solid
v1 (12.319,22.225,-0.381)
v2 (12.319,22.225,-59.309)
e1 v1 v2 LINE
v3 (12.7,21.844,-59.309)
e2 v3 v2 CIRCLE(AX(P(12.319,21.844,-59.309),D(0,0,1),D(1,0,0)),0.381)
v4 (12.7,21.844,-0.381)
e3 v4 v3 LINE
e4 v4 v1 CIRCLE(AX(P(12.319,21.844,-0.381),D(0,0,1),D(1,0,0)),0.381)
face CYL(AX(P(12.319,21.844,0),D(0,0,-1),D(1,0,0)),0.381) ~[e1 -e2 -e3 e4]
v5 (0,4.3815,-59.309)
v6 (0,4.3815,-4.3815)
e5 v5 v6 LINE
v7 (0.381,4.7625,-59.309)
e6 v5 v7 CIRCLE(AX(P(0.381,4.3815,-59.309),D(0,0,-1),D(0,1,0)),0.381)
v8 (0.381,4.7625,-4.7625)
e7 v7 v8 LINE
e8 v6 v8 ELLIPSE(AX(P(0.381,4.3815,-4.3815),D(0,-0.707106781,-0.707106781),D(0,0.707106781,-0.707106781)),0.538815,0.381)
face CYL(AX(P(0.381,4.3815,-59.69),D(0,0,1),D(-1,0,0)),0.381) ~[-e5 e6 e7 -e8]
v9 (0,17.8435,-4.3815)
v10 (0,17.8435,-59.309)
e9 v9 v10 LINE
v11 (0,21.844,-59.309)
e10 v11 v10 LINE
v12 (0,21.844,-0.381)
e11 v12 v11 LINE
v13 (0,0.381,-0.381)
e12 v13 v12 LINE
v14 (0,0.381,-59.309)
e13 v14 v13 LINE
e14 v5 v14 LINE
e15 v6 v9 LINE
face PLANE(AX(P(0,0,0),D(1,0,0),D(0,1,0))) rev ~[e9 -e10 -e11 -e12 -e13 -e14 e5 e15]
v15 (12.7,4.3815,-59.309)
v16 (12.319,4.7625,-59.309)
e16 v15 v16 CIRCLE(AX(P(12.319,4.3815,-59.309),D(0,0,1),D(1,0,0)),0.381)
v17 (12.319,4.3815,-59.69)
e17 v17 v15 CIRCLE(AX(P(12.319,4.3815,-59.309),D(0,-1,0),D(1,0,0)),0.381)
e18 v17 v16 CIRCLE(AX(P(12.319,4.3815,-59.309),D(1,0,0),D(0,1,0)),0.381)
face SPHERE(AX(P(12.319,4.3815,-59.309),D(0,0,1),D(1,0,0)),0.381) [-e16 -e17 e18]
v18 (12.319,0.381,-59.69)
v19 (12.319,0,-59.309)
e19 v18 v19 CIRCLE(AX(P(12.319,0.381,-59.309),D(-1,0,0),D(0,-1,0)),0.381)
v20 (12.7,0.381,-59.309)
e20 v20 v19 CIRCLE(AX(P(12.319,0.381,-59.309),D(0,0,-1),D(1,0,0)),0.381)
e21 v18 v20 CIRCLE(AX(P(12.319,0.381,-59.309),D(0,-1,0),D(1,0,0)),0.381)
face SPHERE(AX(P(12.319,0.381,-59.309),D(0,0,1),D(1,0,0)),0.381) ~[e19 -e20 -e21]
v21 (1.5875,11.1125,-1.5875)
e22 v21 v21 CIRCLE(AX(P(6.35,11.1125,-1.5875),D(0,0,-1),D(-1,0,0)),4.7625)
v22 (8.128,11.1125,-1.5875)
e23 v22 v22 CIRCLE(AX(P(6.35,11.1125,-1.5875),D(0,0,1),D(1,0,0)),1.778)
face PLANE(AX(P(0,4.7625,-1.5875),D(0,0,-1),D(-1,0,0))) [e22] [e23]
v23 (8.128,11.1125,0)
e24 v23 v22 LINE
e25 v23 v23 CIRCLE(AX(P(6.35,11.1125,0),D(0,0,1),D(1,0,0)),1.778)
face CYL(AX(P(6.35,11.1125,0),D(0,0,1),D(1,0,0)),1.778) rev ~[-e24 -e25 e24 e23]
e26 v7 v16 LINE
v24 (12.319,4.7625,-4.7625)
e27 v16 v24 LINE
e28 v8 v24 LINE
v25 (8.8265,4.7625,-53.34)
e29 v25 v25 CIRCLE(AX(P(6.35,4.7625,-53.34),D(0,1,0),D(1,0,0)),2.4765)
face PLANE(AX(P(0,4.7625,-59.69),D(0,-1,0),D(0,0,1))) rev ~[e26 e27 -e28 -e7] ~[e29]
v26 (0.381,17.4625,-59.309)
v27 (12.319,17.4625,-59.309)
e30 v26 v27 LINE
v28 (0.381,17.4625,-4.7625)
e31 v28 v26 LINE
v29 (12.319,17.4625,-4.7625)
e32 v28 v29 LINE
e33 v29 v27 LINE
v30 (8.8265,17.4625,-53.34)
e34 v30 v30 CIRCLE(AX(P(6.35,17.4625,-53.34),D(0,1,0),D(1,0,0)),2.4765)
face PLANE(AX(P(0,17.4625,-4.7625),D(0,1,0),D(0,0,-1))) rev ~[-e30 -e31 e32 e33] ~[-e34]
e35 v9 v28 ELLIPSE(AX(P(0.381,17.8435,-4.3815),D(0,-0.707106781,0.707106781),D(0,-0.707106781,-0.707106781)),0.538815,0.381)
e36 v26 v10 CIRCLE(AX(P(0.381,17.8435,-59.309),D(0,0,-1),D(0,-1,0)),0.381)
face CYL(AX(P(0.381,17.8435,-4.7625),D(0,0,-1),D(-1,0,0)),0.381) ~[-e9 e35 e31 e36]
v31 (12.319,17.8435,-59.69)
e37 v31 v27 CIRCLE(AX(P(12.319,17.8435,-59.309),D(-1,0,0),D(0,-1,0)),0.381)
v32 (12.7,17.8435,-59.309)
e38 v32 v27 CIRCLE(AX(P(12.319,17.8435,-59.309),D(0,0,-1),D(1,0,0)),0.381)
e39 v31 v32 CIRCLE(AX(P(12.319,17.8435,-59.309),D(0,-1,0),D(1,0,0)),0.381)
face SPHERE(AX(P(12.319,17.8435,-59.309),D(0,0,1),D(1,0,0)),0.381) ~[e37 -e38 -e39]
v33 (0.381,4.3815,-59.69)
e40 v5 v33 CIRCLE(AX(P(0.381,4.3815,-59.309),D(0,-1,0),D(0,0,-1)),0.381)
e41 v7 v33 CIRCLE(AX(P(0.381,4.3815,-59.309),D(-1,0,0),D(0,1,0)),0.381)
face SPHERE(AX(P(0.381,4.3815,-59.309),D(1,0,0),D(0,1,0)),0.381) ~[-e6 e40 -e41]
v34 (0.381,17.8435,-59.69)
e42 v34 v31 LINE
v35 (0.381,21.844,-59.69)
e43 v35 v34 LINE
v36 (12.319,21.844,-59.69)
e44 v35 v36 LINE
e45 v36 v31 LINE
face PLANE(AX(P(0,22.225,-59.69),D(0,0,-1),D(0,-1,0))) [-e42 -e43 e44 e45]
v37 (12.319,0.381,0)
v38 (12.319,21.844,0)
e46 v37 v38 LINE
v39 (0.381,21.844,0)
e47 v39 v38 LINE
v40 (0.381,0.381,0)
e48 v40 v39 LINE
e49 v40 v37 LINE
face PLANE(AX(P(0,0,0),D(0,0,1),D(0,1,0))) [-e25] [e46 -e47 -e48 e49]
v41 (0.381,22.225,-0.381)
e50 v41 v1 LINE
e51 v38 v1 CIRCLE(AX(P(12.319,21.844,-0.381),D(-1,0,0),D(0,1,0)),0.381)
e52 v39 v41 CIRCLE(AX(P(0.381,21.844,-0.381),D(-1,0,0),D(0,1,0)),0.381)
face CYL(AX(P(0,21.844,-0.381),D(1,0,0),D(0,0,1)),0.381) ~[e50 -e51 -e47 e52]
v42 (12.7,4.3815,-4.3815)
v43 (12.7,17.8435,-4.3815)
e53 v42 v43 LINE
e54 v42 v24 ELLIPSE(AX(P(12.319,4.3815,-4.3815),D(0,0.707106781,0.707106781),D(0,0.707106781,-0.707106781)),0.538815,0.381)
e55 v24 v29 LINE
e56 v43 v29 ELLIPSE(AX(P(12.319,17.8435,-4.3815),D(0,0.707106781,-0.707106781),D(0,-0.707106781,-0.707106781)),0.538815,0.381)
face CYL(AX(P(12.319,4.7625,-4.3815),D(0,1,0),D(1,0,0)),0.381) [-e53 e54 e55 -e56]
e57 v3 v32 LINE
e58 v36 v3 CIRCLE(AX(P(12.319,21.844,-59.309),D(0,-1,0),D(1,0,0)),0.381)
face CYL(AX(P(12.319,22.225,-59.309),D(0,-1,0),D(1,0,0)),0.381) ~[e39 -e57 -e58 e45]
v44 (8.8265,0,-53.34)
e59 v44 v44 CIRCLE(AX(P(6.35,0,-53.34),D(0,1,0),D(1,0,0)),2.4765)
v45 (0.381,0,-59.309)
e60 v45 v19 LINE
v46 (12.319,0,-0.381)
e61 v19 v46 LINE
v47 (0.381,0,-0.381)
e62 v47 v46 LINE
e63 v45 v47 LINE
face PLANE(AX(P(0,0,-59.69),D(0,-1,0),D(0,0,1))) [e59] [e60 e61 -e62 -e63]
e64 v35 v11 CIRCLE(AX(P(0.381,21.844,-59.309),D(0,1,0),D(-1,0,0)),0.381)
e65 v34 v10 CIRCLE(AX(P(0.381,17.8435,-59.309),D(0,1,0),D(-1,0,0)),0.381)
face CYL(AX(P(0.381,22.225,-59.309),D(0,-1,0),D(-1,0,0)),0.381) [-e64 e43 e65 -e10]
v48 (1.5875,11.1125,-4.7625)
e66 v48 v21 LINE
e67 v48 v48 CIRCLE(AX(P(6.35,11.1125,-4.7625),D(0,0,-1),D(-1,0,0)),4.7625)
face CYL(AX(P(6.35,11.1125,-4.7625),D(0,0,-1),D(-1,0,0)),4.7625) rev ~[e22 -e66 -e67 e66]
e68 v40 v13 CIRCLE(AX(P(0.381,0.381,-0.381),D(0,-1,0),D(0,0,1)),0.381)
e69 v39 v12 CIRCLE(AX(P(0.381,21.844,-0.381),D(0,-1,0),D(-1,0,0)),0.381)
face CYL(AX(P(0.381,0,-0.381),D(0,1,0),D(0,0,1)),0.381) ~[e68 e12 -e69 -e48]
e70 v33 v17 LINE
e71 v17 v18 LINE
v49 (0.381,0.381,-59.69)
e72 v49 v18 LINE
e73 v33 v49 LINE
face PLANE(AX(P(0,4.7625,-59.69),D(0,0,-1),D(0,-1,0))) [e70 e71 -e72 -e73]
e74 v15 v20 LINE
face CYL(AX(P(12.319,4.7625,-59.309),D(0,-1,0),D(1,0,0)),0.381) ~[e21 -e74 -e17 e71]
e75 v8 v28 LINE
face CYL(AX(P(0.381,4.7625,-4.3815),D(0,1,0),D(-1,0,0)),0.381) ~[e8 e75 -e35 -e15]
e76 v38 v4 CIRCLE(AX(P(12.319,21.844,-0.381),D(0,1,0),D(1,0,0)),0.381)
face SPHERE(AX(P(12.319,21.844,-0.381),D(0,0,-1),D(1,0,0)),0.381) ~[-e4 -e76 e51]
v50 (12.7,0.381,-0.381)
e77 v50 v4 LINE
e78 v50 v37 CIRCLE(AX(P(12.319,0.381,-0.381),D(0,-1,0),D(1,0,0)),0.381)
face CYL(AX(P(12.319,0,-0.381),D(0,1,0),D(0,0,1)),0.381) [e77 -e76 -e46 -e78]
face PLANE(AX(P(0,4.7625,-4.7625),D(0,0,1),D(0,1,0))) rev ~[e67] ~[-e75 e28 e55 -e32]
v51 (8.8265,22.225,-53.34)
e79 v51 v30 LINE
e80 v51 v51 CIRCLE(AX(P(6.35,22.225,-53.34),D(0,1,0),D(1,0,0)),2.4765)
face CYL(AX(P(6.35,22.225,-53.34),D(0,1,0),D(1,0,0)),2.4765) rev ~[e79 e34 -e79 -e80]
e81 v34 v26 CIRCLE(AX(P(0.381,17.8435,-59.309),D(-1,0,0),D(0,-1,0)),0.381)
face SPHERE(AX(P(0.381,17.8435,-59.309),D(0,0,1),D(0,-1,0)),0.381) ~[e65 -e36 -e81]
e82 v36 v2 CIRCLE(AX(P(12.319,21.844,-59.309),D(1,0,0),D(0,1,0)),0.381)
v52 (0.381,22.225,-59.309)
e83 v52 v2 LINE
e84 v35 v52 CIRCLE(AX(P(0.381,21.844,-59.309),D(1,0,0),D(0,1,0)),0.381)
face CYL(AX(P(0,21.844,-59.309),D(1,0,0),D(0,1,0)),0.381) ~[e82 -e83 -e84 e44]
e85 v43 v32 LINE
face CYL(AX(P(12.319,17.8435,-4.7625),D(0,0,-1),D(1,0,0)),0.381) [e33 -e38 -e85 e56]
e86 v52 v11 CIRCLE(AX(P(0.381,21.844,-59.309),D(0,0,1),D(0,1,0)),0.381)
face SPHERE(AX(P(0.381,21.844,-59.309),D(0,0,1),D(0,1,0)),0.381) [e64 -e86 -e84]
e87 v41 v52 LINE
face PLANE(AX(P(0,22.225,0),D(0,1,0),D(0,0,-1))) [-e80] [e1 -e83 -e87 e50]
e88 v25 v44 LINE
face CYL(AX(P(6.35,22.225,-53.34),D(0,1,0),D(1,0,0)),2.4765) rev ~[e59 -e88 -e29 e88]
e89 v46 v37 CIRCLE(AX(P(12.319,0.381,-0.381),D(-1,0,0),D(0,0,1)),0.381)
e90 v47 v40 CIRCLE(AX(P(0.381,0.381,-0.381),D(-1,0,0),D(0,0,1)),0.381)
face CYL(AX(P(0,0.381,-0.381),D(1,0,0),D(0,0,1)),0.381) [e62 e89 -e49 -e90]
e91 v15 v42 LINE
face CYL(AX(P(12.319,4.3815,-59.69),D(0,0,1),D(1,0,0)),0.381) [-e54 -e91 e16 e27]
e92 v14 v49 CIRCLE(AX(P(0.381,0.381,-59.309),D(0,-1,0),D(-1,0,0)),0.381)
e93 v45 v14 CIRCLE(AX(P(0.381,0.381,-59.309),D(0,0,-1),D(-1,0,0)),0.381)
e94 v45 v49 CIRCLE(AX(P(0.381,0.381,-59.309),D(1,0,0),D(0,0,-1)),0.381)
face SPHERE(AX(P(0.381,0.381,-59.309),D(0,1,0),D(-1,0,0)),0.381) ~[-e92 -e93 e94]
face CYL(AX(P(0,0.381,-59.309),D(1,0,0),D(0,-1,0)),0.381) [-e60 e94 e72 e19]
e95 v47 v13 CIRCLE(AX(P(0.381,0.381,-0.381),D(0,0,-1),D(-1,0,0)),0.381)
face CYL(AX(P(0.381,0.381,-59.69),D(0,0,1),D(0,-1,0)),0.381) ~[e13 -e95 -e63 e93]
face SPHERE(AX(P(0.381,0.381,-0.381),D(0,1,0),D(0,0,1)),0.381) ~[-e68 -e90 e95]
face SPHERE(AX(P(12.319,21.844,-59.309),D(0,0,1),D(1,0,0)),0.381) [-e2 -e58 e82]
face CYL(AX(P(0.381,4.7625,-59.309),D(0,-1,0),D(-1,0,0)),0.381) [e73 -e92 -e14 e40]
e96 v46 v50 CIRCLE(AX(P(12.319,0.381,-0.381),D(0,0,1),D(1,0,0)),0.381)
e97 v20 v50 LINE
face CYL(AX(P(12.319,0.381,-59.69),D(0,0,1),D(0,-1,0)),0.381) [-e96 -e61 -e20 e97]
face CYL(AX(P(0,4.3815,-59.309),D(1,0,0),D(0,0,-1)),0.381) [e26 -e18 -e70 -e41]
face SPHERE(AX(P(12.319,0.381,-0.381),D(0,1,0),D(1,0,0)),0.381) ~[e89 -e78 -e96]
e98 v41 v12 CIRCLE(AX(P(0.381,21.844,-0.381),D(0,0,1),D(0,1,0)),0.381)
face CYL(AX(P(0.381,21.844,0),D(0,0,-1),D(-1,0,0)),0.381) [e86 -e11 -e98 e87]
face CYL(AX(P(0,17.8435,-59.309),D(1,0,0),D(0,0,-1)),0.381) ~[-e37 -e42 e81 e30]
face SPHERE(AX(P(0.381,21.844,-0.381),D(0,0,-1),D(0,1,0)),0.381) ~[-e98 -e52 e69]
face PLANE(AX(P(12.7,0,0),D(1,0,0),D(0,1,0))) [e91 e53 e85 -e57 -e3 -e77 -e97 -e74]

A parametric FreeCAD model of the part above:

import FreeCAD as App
import Part
import Sketcher

V = App.Vector
Q = App.Units.Quantity


def edges_at(feature, points):
    """Names of the edges that pass closest to the given points."""
    edges = feature.Shape.Edges
    near = lambda p: min(range(len(edges)), key=lambda i: edges[i].distToShape(Part.Vertex(*p))[0])
    return sorted({f"Edge{near(p) + 1}" for p in points})

doc = App.newDocument("Part")
body = doc.addObject("PartDesign::Body", "Body")

# Sketch on YZ plane
sketch1 = body.newObject("Sketcher::SketchObject", "Sketch")
sketch1.AttachmentSupport = (doc.getObject("YZ_Plane"), [""])
sketch1.MapMode = "FlatFace"
sketch1.addGeometry([
    Part.LineSegment(V(22.2, 0, 0), V(0, 0, 0)),  # 0
    Part.LineSegment(V(0, 0, 0), V(0, -59.7, 0)),  # 1
    Part.LineSegment(V(0, -59.7, 0), V(4.8, -59.7, 0)),  # 2
    Part.LineSegment(V(4.8, -59.7, 0), V(4.8, -4.8, 0)),  # 3
    Part.LineSegment(V(4.8, -4.8, 0), V(17.5, -4.8, 0)),  # 4
    Part.LineSegment(V(17.5, -4.8, 0), V(17.5, -59.7, 0)),  # 5
    Part.LineSegment(V(17.5, -59.7, 0), V(22.2, -59.7, 0)),  # 6
    Part.LineSegment(V(22.2, -59.7, 0), V(22.2, 0, 0)),  # 7
], False)
sketch1.addConstraint([
    Sketcher.Constraint("Coincident", 0, 2, 1, 1),
    Sketcher.Constraint("Coincident", 1, 2, 2, 1),
    Sketcher.Constraint("Coincident", 2, 2, 3, 1),
    Sketcher.Constraint("Coincident", 3, 2, 4, 1),
    Sketcher.Constraint("Coincident", 4, 2, 5, 1),
    Sketcher.Constraint("Coincident", 5, 2, 6, 1),
    Sketcher.Constraint("Coincident", 6, 2, 7, 1),
    Sketcher.Constraint("Coincident", 7, 2, 0, 1),
    Sketcher.Constraint("Horizontal", 0),
    Sketcher.Constraint("Vertical", 1),
    Sketcher.Constraint("Horizontal", 2),
    Sketcher.Constraint("Vertical", 3),
    Sketcher.Constraint("Horizontal", 4),
    Sketcher.Constraint("Vertical", 5),
    Sketcher.Constraint("Horizontal", 6),
    Sketcher.Constraint("Vertical", 7),
    Sketcher.Constraint("Coincident", 0, 2, -1, 1),
    Sketcher.Constraint("Horizontal", 2, 2, 5, 2),
    Sketcher.Constraint("Equal", 2, 6),
    Sketcher.Constraint("DistanceX", 4, 1, 4, 2, Q("0.5 in")),
    Sketcher.Constraint("DistanceY", 1, 2, 1, 1, Q("2.35 in")),
    Sketcher.Constraint("DistanceX", 2, 1, 2, 2, Q("0.1875 in")),
    Sketcher.Constraint("DistanceY", 3, 2, -1, 1, Q("0.1875 in")),
])
pad1 = body.newObject("PartDesign::Pad", "Pad")
pad1.Profile = sketch1
pad1.Length = Q("0.5 in")

# Sketch on XZ plane
sketch2 = body.newObject("Sketcher::SketchObject", "Sketch001")
sketch2.AttachmentSupport = (doc.getObject("XZ_Plane"), [""])
sketch2.MapMode = "FlatFace"
sketch2.AttachmentOffset = App.Placement(V(0, 0, -0.875 * 25.4), App.Rotation())
sketch2.addGeometry(Part.Circle(V(6.3, -53.3, 0), V(0, 0, 1), 2.5), False)
sketch2.addConstraint([
    Sketcher.Constraint("Diameter", 0, Q("0.195 in")),
    Sketcher.Constraint("DistanceX", -1, 1, 0, 3, Q("0.25 in")),
    Sketcher.Constraint("DistanceY", 0, 3, -1, 1, Q("2.1 in")),
])
pocket1 = body.newObject("PartDesign::Pocket", "Pocket")
pocket1.Profile = sketch2
pocket1.Length = Q("1 in")
pocket1.Reversed = True

# Sketch on XY plane
sketch3 = body.newObject("Sketcher::SketchObject", "Sketch002")
sketch3.AttachmentSupport = (doc.getObject("XY_Plane"), [""])
sketch3.MapMode = "FlatFace"
sketch3.AttachmentOffset = App.Placement(V(0, 0, -0.1875 * 25.4), App.Rotation())
sketch3.addGeometry(Part.Circle(V(6.3, 11.1, 0), V(0, 0, 1), 4.8), False)
sketch3.addConstraint([
    Sketcher.Constraint("Diameter", 0, Q("0.375 in")),
    Sketcher.Constraint("DistanceX", -1, 1, 0, 3, Q("0.25 in")),
    Sketcher.Constraint("DistanceY", -1, 1, 0, 3, Q("0.4375 in")),
])
pocket2 = body.newObject("PartDesign::Pocket", "Pocket001")
pocket2.Profile = sketch3
pocket2.Length = Q("0.125 in")
pocket2.Reversed = True

# Sketch on XY plane
sketch4 = body.newObject("Sketcher::SketchObject", "Sketch003")
sketch4.AttachmentSupport = (doc.getObject("XY_Plane"), [""])
sketch4.MapMode = "FlatFace"
sketch4.addGeometry(Part.Circle(V(6.3, 11.1, 0), V(0, 0, 1), 1.8), False)
sketch4.addConstraint([
    Sketcher.Constraint("Diameter", 0, Q("0.14 in")),
    Sketcher.Constraint("DistanceX", -1, 1, 0, 3, Q("0.25 in")),
    Sketcher.Constraint("DistanceY", -1, 1, 0, 3, Q("0.4375 in")),
])
pocket3 = body.newObject("PartDesign::Pocket", "Pocket002")
pocket3.Profile = sketch4
pocket3.Length = Q("1 in")
doc.recompute()

fillet = body.newObject("PartDesign::Fillet", "Fillet")
fillet.Base = (pocket3, edges_at(pocket3, [
    (12.7, 22.225, -29.845),
    (12.7, 17.462, -32.226),
    (0, 22.225, -29.845),
    (12.7, 11.113, 0),
    (12.7, 11.113, -4.763),
    (12.7, 4.763, -32.226),
    (12.7, 0, -29.845),
    (12.7, 19.844, -59.69),
    (12.7, 2.381, -59.69),
    (6.35, 22.225, 0),
    (0, 11.113, 0),
    (6.35, 0, 0),
    (6.35, 22.225, -59.69),
    (6.35, 4.763, -59.69),
    (0, 17.462, -32.226),
    (0, 11.113, -4.763),
    (0, 4.763, -32.226),
    (6.35, 17.462, -59.69),
    (0, 19.844, -59.69),
    (0, 2.381, -59.69),
    (0, 0, -29.845),
    (6.35, 0, -59.69),
]))
fillet.Radius = Q("0.015 in")

doc.recompute()
